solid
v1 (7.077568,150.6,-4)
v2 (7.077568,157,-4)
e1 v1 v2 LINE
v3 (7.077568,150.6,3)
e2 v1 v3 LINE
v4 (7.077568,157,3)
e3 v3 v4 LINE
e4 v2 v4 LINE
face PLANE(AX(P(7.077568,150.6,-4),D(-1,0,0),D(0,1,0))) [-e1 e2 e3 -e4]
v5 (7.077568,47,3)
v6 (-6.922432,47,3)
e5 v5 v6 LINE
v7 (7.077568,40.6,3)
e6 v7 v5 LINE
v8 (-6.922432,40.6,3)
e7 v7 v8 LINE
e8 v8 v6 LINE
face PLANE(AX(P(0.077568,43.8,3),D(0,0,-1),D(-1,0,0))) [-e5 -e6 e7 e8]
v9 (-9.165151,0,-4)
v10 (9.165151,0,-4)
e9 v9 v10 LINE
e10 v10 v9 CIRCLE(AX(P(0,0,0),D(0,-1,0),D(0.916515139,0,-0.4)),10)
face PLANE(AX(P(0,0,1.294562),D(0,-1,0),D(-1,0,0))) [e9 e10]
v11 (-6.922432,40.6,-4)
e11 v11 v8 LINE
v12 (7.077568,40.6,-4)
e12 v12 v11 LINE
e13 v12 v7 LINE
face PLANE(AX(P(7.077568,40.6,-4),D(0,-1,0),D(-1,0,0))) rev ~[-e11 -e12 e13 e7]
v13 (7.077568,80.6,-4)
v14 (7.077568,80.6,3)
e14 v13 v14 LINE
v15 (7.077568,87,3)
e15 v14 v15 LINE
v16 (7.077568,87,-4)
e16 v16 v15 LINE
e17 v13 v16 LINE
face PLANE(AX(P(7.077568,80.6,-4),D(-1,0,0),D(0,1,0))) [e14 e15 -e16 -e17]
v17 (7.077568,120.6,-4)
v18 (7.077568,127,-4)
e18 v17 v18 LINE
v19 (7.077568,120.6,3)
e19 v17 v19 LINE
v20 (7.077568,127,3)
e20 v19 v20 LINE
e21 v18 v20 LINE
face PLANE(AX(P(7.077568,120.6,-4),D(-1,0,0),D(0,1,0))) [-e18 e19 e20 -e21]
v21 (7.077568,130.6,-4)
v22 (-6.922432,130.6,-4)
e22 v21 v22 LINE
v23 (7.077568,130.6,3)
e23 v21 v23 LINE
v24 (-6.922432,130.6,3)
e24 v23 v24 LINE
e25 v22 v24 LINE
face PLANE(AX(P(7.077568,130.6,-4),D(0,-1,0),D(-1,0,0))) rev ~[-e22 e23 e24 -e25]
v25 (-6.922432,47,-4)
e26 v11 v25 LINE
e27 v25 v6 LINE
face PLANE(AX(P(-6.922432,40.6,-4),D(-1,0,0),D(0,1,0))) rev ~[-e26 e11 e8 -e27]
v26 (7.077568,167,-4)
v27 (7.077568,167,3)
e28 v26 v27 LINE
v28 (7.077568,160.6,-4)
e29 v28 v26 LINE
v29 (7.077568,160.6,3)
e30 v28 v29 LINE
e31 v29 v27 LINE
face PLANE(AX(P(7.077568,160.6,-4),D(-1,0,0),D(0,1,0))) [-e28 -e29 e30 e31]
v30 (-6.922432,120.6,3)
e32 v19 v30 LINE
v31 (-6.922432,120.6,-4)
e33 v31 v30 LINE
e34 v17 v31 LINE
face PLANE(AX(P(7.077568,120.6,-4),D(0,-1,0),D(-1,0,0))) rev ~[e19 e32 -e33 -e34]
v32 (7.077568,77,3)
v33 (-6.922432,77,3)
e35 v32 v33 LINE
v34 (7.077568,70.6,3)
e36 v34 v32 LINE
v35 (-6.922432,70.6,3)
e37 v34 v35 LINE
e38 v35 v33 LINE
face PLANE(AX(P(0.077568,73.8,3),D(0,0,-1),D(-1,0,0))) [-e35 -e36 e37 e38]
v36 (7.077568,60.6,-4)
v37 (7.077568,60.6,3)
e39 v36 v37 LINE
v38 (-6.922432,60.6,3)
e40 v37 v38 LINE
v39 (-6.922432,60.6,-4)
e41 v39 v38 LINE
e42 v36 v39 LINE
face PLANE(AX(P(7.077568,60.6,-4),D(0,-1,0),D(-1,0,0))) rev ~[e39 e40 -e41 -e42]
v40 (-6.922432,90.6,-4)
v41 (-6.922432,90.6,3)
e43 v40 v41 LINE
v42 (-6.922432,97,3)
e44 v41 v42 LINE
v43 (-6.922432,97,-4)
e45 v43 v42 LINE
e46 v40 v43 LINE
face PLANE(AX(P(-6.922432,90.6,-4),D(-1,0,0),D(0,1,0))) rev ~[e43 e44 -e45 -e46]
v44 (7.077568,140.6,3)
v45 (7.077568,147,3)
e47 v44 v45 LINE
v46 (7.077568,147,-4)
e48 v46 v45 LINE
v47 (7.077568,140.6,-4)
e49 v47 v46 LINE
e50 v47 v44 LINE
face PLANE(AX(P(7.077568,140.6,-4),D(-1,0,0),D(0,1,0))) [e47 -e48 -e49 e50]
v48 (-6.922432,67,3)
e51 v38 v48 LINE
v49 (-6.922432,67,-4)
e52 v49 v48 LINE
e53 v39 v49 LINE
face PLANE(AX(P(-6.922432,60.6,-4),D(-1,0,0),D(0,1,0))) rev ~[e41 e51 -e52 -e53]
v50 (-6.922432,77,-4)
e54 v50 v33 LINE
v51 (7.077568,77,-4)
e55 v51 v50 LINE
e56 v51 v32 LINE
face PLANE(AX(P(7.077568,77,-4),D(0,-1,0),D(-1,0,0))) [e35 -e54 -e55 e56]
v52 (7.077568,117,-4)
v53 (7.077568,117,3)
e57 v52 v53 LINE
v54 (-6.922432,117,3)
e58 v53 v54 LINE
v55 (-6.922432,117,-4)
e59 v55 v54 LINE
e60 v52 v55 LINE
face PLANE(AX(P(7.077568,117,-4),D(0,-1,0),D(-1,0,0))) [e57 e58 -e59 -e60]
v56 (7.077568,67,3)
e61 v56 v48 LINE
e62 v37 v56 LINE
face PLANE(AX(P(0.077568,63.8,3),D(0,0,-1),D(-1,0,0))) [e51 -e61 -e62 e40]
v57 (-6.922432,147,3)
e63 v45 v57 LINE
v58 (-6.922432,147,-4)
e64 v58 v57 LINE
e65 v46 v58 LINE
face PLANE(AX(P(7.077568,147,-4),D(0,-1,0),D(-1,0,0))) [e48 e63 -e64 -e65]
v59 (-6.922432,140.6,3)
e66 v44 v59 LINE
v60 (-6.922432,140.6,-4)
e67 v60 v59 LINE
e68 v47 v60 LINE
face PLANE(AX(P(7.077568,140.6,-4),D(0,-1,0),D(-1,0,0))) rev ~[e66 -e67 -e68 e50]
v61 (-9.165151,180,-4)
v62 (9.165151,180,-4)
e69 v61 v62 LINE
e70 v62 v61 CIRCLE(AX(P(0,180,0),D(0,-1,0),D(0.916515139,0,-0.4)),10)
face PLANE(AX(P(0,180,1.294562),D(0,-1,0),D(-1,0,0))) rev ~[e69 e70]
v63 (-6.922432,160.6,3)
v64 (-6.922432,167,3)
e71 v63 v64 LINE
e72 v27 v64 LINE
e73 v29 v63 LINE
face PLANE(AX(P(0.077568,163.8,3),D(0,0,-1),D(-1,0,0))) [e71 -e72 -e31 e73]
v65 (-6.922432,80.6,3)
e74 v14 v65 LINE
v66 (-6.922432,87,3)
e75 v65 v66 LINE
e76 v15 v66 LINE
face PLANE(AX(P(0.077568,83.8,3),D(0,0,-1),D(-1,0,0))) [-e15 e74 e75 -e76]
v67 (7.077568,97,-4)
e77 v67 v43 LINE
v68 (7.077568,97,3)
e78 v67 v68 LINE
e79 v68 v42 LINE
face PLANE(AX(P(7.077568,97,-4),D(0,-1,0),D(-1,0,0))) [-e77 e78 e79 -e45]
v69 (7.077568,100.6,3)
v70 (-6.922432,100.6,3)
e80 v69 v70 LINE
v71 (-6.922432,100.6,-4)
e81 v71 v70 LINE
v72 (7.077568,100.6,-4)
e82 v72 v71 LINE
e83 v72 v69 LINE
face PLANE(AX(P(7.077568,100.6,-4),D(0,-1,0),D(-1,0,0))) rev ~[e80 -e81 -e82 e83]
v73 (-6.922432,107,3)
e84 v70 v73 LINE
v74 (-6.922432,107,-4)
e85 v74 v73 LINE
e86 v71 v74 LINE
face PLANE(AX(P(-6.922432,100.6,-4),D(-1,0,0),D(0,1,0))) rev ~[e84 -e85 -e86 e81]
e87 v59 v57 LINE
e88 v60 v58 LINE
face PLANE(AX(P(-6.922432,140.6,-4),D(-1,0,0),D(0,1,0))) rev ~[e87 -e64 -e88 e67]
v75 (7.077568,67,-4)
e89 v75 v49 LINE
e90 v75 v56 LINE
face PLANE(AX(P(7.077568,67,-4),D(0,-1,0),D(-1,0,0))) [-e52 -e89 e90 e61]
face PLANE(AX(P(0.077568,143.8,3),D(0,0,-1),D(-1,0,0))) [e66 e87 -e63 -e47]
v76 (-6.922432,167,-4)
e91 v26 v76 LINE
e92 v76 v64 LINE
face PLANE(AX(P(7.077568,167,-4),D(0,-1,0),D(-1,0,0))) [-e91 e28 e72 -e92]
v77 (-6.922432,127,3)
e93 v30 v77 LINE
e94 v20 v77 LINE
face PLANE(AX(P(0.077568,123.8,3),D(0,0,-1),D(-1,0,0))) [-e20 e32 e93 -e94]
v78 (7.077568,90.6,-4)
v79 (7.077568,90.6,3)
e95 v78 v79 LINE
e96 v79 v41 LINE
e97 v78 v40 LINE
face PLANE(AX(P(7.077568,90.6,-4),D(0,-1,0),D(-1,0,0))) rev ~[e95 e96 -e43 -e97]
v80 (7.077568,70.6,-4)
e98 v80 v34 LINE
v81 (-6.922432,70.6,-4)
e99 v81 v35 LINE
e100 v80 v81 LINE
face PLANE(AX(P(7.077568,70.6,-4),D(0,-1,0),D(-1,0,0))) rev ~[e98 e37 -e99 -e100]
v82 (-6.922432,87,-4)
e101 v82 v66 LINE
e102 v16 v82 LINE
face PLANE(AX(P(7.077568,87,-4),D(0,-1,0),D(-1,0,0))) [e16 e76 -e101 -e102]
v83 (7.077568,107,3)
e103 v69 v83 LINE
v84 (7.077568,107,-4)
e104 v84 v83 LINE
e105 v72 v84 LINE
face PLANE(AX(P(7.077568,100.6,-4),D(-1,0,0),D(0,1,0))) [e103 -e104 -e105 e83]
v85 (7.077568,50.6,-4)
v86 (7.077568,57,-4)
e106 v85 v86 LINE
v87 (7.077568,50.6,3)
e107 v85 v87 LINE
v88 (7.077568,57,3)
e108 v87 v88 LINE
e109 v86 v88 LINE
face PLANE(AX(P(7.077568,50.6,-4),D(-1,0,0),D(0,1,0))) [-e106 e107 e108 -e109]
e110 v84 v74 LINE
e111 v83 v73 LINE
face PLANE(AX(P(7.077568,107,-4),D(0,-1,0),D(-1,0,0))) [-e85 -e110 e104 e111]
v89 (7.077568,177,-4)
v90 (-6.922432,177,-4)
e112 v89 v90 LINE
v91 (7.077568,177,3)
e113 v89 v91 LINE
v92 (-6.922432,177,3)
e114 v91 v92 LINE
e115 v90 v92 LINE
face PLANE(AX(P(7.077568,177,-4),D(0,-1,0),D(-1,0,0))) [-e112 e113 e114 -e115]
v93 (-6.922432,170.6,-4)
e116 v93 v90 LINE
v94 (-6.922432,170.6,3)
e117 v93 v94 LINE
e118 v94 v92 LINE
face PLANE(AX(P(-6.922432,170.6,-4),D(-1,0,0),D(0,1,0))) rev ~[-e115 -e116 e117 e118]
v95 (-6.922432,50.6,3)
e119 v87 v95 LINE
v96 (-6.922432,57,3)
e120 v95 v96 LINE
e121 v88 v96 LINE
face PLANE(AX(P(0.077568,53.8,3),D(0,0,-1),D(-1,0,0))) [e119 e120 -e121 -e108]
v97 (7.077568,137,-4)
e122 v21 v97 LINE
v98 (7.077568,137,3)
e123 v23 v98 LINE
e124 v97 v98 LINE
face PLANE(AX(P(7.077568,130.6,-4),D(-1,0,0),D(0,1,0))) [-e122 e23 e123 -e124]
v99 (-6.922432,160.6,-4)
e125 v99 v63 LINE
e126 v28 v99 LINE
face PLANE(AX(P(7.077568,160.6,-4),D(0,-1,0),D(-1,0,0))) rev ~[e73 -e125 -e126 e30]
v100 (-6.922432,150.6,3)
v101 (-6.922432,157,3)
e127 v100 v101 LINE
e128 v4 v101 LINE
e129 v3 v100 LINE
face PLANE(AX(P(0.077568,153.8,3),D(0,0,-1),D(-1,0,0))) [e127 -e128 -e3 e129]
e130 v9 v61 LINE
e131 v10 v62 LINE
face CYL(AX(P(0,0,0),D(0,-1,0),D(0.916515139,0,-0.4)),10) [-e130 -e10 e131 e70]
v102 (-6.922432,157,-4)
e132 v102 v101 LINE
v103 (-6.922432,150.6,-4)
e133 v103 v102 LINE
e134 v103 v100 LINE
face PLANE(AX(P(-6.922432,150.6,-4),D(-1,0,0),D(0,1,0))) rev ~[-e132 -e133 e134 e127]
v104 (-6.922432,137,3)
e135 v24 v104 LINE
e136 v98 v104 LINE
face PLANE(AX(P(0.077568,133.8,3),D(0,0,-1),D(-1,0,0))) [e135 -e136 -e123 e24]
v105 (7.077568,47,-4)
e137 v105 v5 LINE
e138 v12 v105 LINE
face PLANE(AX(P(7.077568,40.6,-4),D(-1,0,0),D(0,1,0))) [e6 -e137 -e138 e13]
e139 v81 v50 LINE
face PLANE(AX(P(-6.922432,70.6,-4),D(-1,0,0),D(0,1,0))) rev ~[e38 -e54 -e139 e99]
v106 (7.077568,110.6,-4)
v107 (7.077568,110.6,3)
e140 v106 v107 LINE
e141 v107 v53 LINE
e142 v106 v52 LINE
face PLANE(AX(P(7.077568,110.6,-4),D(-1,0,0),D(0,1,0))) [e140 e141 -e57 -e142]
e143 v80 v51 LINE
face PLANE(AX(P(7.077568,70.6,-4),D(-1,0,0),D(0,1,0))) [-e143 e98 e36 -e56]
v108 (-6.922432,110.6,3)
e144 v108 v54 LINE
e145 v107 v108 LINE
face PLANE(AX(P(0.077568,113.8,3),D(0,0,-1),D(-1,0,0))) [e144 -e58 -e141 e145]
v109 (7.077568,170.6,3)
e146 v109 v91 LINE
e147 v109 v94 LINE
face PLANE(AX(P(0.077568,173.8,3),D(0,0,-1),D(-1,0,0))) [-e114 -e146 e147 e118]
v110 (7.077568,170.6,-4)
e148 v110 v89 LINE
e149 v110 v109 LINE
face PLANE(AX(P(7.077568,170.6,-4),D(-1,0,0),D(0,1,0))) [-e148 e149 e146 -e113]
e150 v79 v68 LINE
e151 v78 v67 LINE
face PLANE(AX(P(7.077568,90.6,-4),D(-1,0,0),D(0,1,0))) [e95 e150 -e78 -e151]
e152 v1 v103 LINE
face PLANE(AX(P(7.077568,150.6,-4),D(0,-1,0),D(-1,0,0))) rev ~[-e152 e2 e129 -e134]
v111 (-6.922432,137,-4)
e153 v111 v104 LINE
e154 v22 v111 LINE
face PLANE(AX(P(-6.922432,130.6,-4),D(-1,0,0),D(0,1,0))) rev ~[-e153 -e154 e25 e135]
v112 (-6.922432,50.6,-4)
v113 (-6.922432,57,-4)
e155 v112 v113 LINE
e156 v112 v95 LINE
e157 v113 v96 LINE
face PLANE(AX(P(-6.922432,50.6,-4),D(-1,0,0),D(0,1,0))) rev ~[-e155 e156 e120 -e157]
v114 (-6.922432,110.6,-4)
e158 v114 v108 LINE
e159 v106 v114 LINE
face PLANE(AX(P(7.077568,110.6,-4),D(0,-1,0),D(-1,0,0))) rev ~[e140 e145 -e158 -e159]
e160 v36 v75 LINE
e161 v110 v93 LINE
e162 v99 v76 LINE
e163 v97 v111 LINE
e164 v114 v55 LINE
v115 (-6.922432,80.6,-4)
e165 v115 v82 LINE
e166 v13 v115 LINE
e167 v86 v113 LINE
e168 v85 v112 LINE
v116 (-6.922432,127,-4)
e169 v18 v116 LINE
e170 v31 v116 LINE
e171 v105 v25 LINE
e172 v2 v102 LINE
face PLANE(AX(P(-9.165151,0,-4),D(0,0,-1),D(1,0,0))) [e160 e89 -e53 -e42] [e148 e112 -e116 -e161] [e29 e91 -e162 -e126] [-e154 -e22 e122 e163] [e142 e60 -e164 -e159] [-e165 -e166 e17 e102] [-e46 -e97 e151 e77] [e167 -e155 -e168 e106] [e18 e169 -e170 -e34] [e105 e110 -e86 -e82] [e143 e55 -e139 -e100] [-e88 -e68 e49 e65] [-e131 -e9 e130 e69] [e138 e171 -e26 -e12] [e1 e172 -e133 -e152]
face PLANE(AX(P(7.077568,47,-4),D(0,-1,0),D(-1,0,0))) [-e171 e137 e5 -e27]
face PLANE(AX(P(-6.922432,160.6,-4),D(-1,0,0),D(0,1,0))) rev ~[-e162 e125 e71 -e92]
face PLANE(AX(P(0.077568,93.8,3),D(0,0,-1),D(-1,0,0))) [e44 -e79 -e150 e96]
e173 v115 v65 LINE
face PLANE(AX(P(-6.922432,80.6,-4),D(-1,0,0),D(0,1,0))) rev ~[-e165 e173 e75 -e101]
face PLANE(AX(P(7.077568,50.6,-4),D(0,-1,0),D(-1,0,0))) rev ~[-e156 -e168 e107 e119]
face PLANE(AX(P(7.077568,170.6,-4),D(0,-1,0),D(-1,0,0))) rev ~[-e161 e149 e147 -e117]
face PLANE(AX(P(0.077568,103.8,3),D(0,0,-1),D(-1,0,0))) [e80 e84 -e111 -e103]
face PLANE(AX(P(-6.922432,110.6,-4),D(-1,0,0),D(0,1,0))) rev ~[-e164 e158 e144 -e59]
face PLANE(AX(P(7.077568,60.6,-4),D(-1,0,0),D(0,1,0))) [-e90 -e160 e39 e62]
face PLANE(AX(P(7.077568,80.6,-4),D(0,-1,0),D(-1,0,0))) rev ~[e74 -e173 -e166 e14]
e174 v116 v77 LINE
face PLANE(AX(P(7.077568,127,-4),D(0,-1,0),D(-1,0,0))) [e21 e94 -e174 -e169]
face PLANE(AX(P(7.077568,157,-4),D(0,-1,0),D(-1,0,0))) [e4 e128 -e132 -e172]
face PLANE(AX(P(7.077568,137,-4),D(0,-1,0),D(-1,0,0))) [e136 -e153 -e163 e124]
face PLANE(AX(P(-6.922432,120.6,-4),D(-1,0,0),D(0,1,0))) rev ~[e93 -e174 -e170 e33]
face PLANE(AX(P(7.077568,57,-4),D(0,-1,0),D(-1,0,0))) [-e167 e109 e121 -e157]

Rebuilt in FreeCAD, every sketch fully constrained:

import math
import FreeCAD as App
import Part
import Sketcher


def add_polygon(sketch, points):
    """Adds a closed chain of lines whose ends are joined by coincident constraints."""
    first, n = sketch.GeometryCount, len(points)
    for a, b in zip(points, points[1:] + points[:1]):
        sketch.addGeometry(Part.LineSegment(App.Vector(*a, 0), App.Vector(*b, 0)), False)
    for i in range(n):
        sketch.addConstraint(Sketcher.Constraint("Coincident", first + i, 2, first + (i + 1) % n, 1))

doc = App.newDocument("Part")
params = doc.addObject("Spreadsheet::Sheet", "Params")
for row, (alias, value) in enumerate([
    ("sketch1_radius", "10 mm"),
    ("pad1_length", "180 mm"),
    ("sketch2_width", "14 mm"),
    ("sketch2_height", "6.4 mm"),
    ("pocket1_length", "7 mm"),
], start=1):
    params.set(f"A{row}", alias)
    params.set(f"B{row}", "=" + value)
    params.setAlias(f"B{row}", alias)

body = doc.addObject("PartDesign::Body", "Body")

sketch1 = body.newObject("Sketcher::SketchObject", "Sketch")
sketch1.AttachmentSupport = (doc.getObject("XZ_Plane"), [""])
sketch1.MapMode = "FlatFace"
sketch1.addGeometry([
    Part.LineSegment(App.Vector(9.165151, -4, 0), App.Vector(-9.165151, -4, 0)),
    Part.ArcOfCircle(Part.Circle(App.Vector(0, 0, 0), App.Vector(0, 0, 1), 10), math.radians(-23.578178), math.radians(203.578178)),
], False)
sketch1.addConstraint([
    Sketcher.Constraint("Coincident", 0, 1, 1, 1),
    Sketcher.Constraint("Coincident", 1, 2, 0, 2),
    Sketcher.Constraint("Horizontal", 0),
    Sketcher.Constraint("Coincident", 1, 3, -1, 1),
    Sketcher.Constraint("Radius", 1, 10.0),
    Sketcher.Constraint("DistanceY", 0, 1, -1, 1, 4.0),
])
sketch1.setExpression("Constraints[4]", "Params.sketch1_radius")
pad1 = body.newObject("PartDesign::Pad", "Pad")
pad1.Profile = sketch1
pad1.setExpression("Length", "Params.pad1_length")
pad1.Reversed = True

sketch2 = body.newObject("Sketcher::SketchObject", "Sketch001")
sketch2.AttachmentSupport = (doc.getObject("XY_Plane"), [""])
sketch2.MapMode = "FlatFace"
sketch2.AttachmentOffset = App.Placement(App.Vector(0, 0, -4), App.Rotation())
add_polygon(sketch2, [(7.077568, 177), (7.077568, 170.6), (-6.922432, 170.6), (-6.922432, 177)])
add_polygon(sketch2, [(7.077568, 167), (7.077568, 160.6), (-6.922432, 160.6), (-6.922432, 167)])
add_polygon(sketch2, [(7.077568, 157), (7.077568, 150.6), (-6.922432, 150.6), (-6.922432, 157)])
add_polygon(sketch2, [(7.077568, 147), (7.077568, 140.6), (-6.922432, 140.6), (-6.922432, 147)])
add_polygon(sketch2, [(7.077568, 137), (7.077568, 130.6), (-6.922432, 130.6), (-6.922432, 137)])
add_polygon(sketch2, [(7.077568, 127), (7.077568, 120.6), (-6.922432, 120.6), (-6.922432, 127)])
add_polygon(sketch2, [(7.077568, 117), (7.077568, 110.6), (-6.922432, 110.6), (-6.922432, 117)])
add_polygon(sketch2, [(7.077568, 107), (7.077568, 100.6), (-6.922432, 100.6), (-6.922432, 107)])
add_polygon(sketch2, [(7.077568, 97), (7.077568, 90.6), (-6.922432, 90.6), (-6.922432, 97)])
add_polygon(sketch2, [(7.077568, 87), (7.077568, 80.6), (-6.922432, 80.6), (-6.922432, 87)])
add_polygon(sketch2, [(7.077568, 77), (7.077568, 70.6), (-6.922432, 70.6), (-6.922432, 77)])
add_polygon(sketch2, [(7.077568, 67), (7.077568, 60.6), (-6.922432, 60.6), (-6.922432, 67)])
add_polygon(sketch2, [(7.077568, 57), (7.077568, 50.6), (-6.922432, 50.6), (-6.922432, 57)])
add_polygon(sketch2, [(7.077568, 47), (7.077568, 40.6), (-6.922432, 40.6), (-6.922432, 47)])
sketch2.addConstraint([
    Sketcher.Constraint("Vertical", 0),
    Sketcher.Constraint("Horizontal", 1),
    Sketcher.Constraint("Vertical", 2),
    Sketcher.Constraint("Horizontal", 3),
    Sketcher.Constraint("Vertical", 4),
    Sketcher.Constraint("Horizontal", 5),
    Sketcher.Constraint("Vertical", 6),
    Sketcher.Constraint("Horizontal", 7),
    Sketcher.Constraint("Vertical", 8),
    Sketcher.Constraint("Horizontal", 9),
    Sketcher.Constraint("Vertical", 10),
    Sketcher.Constraint("Horizontal", 11),
    Sketcher.Constraint("Vertical", 12),
    Sketcher.Constraint("Horizontal", 13),
    Sketcher.Constraint("Vertical", 14),
    Sketcher.Constraint("Horizontal", 15),
    Sketcher.Constraint("Vertical", 16),
    Sketcher.Constraint("Horizontal", 17),
    Sketcher.Constraint("Vertical", 18),
    Sketcher.Constraint("Horizontal", 19),
    Sketcher.Constraint("Vertical", 20),
    Sketcher.Constraint("Horizontal", 21),
    Sketcher.Constraint("Vertical", 22),
    Sketcher.Constraint("Horizontal", 23),
    Sketcher.Constraint("Vertical", 24),
    Sketcher.Constraint("Horizontal", 25),
    Sketcher.Constraint("Vertical", 26),
    Sketcher.Constraint("Horizontal", 27),
    Sketcher.Constraint("Vertical", 28),
    Sketcher.Constraint("Horizontal", 29),
    Sketcher.Constraint("Vertical", 30),
    Sketcher.Constraint("Horizontal", 31),
    Sketcher.Constraint("Vertical", 32),
    Sketcher.Constraint("Horizontal", 33),
    Sketcher.Constraint("Vertical", 34),
    Sketcher.Constraint("Horizontal", 35),
    Sketcher.Constraint("Vertical", 36),
    Sketcher.Constraint("Horizontal", 37),
    Sketcher.Constraint("Vertical", 38),
    Sketcher.Constraint("Horizontal", 39),
    Sketcher.Constraint("Vertical", 40),
    Sketcher.Constraint("Horizontal", 41),
    Sketcher.Constraint("Vertical", 42),
    Sketcher.Constraint("Horizontal", 43),
    Sketcher.Constraint("Vertical", 44),
    Sketcher.Constraint("Horizontal", 45),
    Sketcher.Constraint("Vertical", 46),
    Sketcher.Constraint("Horizontal", 47),
    Sketcher.Constraint("Vertical", 48),
    Sketcher.Constraint("Horizontal", 49),
    Sketcher.Constraint("Vertical", 50),
    Sketcher.Constraint("Horizontal", 51),
    Sketcher.Constraint("Vertical", 52),
    Sketcher.Constraint("Horizontal", 53),
    Sketcher.Constraint("Vertical", 54),
    Sketcher.Constraint("Horizontal", 55),
    Sketcher.Constraint("Vertical", 3, 2, 4, 2),
    Sketcher.Constraint("Vertical", 2, 2, 5, 2),
    Sketcher.Constraint("Vertical", 7, 2, 8, 2),
    Sketcher.Constraint("Vertical", 6, 2, 9, 2),
    Sketcher.Constraint("Vertical", 11, 2, 12, 2),
    Sketcher.Constraint("Vertical", 10, 2, 13, 2),
    Sketcher.Constraint("Vertical", 15, 2, 16, 2),
    Sketcher.Constraint("Vertical", 14, 2, 17, 2),
    Sketcher.Constraint("Vertical", 19, 2, 20, 2),
    Sketcher.Constraint("Vertical", 18, 2, 21, 2),
    Sketcher.Constraint("Vertical", 23, 2, 24, 2),
    Sketcher.Constraint("Vertical", 22, 2, 25, 2),
    Sketcher.Constraint("Vertical", 27, 2, 28, 2),
    Sketcher.Constraint("Vertical", 26, 2, 29, 2),
    Sketcher.Constraint("Vertical", 31, 2, 32, 2),
    Sketcher.Constraint("Vertical", 30, 2, 33, 2),
    Sketcher.Constraint("Vertical", 35, 2, 36, 2),
    Sketcher.Constraint("Vertical", 34, 2, 37, 2),
    Sketcher.Constraint("Vertical", 39, 2, 40, 2),
    Sketcher.Constraint("Vertical", 38, 2, 41, 2),
    Sketcher.Constraint("Vertical", 43, 2, 44, 2),
    Sketcher.Constraint("Vertical", 42, 2, 45, 2),
    Sketcher.Constraint("Vertical", 47, 2, 48, 2),
    Sketcher.Constraint("Vertical", 46, 2, 49, 2),
    Sketcher.Constraint("Vertical", 51, 2, 52, 2),
    Sketcher.Constraint("Vertical", 50, 2, 53, 2),
    Sketcher.Constraint("Equal", 2, 4),
    Sketcher.Constraint("Equal", 6, 8),
    Sketcher.Constraint("Equal", 10, 12),
    Sketcher.Constraint("Equal", 14, 16),
    Sketcher.Constraint("Equal", 18, 20),
    Sketcher.Constraint("Equal", 22, 24),
    Sketcher.Constraint("Equal", 26, 28),
    Sketcher.Constraint("Equal", 30, 32),
    Sketcher.Constraint("Equal", 34, 36),
    Sketcher.Constraint("Equal", 38, 40),
    Sketcher.Constraint("Equal", 42, 44),
    Sketcher.Constraint("Equal", 46, 48),
    Sketcher.Constraint("Equal", 50, 52),
    Sketcher.Constraint("DistanceX", 1, 2, 1, 1, 14.0),
    Sketcher.Constraint("DistanceY", 0, 2, 0, 1, 6.4),
    Sketcher.Constraint("DistanceY", -1, 1, 2, 2, 177.0),
    Sketcher.Constraint("DistanceY", -1, 1, 6, 2, 167.0),
    Sketcher.Constraint("DistanceY", -1, 1, 10, 2, 157.0),
    Sketcher.Constraint("DistanceY", -1, 1, 14, 2, 147.0),
    Sketcher.Constraint("DistanceY", -1, 1, 18, 2, 137.0),
    Sketcher.Constraint("DistanceY", -1, 1, 22, 2, 127.0),
    Sketcher.Constraint("DistanceY", -1, 1, 26, 2, 117.0),
    Sketcher.Constraint("DistanceY", -1, 1, 30, 2, 107.0),
    Sketcher.Constraint("DistanceY", -1, 1, 34, 2, 97.0),
    Sketcher.Constraint("DistanceY", -1, 1, 38, 2, 87.0),
    Sketcher.Constraint("DistanceY", -1, 1, 42, 2, 77.0),
    Sketcher.Constraint("DistanceY", -1, 1, 46, 2, 67.0),
    Sketcher.Constraint("DistanceY", -1, 1, 50, 2, 57.0),
    Sketcher.Constraint("DistanceY", -1, 1, 54, 2, 47.0),
    Sketcher.Constraint("DistanceX", -1, 1, 0, 2, 7.077568),
])
sketch2.setExpression("Constraints[151]", "Params.sketch2_width")
sketch2.setExpression("Constraints[152]", "Params.sketch2_height")
pocket1 = body.newObject("PartDesign::Pocket", "Pocket")
pocket1.Profile = sketch2
pocket1.setExpression("Length", "Params.pocket1_length")
pocket1.Reversed = True

doc.recompute()
